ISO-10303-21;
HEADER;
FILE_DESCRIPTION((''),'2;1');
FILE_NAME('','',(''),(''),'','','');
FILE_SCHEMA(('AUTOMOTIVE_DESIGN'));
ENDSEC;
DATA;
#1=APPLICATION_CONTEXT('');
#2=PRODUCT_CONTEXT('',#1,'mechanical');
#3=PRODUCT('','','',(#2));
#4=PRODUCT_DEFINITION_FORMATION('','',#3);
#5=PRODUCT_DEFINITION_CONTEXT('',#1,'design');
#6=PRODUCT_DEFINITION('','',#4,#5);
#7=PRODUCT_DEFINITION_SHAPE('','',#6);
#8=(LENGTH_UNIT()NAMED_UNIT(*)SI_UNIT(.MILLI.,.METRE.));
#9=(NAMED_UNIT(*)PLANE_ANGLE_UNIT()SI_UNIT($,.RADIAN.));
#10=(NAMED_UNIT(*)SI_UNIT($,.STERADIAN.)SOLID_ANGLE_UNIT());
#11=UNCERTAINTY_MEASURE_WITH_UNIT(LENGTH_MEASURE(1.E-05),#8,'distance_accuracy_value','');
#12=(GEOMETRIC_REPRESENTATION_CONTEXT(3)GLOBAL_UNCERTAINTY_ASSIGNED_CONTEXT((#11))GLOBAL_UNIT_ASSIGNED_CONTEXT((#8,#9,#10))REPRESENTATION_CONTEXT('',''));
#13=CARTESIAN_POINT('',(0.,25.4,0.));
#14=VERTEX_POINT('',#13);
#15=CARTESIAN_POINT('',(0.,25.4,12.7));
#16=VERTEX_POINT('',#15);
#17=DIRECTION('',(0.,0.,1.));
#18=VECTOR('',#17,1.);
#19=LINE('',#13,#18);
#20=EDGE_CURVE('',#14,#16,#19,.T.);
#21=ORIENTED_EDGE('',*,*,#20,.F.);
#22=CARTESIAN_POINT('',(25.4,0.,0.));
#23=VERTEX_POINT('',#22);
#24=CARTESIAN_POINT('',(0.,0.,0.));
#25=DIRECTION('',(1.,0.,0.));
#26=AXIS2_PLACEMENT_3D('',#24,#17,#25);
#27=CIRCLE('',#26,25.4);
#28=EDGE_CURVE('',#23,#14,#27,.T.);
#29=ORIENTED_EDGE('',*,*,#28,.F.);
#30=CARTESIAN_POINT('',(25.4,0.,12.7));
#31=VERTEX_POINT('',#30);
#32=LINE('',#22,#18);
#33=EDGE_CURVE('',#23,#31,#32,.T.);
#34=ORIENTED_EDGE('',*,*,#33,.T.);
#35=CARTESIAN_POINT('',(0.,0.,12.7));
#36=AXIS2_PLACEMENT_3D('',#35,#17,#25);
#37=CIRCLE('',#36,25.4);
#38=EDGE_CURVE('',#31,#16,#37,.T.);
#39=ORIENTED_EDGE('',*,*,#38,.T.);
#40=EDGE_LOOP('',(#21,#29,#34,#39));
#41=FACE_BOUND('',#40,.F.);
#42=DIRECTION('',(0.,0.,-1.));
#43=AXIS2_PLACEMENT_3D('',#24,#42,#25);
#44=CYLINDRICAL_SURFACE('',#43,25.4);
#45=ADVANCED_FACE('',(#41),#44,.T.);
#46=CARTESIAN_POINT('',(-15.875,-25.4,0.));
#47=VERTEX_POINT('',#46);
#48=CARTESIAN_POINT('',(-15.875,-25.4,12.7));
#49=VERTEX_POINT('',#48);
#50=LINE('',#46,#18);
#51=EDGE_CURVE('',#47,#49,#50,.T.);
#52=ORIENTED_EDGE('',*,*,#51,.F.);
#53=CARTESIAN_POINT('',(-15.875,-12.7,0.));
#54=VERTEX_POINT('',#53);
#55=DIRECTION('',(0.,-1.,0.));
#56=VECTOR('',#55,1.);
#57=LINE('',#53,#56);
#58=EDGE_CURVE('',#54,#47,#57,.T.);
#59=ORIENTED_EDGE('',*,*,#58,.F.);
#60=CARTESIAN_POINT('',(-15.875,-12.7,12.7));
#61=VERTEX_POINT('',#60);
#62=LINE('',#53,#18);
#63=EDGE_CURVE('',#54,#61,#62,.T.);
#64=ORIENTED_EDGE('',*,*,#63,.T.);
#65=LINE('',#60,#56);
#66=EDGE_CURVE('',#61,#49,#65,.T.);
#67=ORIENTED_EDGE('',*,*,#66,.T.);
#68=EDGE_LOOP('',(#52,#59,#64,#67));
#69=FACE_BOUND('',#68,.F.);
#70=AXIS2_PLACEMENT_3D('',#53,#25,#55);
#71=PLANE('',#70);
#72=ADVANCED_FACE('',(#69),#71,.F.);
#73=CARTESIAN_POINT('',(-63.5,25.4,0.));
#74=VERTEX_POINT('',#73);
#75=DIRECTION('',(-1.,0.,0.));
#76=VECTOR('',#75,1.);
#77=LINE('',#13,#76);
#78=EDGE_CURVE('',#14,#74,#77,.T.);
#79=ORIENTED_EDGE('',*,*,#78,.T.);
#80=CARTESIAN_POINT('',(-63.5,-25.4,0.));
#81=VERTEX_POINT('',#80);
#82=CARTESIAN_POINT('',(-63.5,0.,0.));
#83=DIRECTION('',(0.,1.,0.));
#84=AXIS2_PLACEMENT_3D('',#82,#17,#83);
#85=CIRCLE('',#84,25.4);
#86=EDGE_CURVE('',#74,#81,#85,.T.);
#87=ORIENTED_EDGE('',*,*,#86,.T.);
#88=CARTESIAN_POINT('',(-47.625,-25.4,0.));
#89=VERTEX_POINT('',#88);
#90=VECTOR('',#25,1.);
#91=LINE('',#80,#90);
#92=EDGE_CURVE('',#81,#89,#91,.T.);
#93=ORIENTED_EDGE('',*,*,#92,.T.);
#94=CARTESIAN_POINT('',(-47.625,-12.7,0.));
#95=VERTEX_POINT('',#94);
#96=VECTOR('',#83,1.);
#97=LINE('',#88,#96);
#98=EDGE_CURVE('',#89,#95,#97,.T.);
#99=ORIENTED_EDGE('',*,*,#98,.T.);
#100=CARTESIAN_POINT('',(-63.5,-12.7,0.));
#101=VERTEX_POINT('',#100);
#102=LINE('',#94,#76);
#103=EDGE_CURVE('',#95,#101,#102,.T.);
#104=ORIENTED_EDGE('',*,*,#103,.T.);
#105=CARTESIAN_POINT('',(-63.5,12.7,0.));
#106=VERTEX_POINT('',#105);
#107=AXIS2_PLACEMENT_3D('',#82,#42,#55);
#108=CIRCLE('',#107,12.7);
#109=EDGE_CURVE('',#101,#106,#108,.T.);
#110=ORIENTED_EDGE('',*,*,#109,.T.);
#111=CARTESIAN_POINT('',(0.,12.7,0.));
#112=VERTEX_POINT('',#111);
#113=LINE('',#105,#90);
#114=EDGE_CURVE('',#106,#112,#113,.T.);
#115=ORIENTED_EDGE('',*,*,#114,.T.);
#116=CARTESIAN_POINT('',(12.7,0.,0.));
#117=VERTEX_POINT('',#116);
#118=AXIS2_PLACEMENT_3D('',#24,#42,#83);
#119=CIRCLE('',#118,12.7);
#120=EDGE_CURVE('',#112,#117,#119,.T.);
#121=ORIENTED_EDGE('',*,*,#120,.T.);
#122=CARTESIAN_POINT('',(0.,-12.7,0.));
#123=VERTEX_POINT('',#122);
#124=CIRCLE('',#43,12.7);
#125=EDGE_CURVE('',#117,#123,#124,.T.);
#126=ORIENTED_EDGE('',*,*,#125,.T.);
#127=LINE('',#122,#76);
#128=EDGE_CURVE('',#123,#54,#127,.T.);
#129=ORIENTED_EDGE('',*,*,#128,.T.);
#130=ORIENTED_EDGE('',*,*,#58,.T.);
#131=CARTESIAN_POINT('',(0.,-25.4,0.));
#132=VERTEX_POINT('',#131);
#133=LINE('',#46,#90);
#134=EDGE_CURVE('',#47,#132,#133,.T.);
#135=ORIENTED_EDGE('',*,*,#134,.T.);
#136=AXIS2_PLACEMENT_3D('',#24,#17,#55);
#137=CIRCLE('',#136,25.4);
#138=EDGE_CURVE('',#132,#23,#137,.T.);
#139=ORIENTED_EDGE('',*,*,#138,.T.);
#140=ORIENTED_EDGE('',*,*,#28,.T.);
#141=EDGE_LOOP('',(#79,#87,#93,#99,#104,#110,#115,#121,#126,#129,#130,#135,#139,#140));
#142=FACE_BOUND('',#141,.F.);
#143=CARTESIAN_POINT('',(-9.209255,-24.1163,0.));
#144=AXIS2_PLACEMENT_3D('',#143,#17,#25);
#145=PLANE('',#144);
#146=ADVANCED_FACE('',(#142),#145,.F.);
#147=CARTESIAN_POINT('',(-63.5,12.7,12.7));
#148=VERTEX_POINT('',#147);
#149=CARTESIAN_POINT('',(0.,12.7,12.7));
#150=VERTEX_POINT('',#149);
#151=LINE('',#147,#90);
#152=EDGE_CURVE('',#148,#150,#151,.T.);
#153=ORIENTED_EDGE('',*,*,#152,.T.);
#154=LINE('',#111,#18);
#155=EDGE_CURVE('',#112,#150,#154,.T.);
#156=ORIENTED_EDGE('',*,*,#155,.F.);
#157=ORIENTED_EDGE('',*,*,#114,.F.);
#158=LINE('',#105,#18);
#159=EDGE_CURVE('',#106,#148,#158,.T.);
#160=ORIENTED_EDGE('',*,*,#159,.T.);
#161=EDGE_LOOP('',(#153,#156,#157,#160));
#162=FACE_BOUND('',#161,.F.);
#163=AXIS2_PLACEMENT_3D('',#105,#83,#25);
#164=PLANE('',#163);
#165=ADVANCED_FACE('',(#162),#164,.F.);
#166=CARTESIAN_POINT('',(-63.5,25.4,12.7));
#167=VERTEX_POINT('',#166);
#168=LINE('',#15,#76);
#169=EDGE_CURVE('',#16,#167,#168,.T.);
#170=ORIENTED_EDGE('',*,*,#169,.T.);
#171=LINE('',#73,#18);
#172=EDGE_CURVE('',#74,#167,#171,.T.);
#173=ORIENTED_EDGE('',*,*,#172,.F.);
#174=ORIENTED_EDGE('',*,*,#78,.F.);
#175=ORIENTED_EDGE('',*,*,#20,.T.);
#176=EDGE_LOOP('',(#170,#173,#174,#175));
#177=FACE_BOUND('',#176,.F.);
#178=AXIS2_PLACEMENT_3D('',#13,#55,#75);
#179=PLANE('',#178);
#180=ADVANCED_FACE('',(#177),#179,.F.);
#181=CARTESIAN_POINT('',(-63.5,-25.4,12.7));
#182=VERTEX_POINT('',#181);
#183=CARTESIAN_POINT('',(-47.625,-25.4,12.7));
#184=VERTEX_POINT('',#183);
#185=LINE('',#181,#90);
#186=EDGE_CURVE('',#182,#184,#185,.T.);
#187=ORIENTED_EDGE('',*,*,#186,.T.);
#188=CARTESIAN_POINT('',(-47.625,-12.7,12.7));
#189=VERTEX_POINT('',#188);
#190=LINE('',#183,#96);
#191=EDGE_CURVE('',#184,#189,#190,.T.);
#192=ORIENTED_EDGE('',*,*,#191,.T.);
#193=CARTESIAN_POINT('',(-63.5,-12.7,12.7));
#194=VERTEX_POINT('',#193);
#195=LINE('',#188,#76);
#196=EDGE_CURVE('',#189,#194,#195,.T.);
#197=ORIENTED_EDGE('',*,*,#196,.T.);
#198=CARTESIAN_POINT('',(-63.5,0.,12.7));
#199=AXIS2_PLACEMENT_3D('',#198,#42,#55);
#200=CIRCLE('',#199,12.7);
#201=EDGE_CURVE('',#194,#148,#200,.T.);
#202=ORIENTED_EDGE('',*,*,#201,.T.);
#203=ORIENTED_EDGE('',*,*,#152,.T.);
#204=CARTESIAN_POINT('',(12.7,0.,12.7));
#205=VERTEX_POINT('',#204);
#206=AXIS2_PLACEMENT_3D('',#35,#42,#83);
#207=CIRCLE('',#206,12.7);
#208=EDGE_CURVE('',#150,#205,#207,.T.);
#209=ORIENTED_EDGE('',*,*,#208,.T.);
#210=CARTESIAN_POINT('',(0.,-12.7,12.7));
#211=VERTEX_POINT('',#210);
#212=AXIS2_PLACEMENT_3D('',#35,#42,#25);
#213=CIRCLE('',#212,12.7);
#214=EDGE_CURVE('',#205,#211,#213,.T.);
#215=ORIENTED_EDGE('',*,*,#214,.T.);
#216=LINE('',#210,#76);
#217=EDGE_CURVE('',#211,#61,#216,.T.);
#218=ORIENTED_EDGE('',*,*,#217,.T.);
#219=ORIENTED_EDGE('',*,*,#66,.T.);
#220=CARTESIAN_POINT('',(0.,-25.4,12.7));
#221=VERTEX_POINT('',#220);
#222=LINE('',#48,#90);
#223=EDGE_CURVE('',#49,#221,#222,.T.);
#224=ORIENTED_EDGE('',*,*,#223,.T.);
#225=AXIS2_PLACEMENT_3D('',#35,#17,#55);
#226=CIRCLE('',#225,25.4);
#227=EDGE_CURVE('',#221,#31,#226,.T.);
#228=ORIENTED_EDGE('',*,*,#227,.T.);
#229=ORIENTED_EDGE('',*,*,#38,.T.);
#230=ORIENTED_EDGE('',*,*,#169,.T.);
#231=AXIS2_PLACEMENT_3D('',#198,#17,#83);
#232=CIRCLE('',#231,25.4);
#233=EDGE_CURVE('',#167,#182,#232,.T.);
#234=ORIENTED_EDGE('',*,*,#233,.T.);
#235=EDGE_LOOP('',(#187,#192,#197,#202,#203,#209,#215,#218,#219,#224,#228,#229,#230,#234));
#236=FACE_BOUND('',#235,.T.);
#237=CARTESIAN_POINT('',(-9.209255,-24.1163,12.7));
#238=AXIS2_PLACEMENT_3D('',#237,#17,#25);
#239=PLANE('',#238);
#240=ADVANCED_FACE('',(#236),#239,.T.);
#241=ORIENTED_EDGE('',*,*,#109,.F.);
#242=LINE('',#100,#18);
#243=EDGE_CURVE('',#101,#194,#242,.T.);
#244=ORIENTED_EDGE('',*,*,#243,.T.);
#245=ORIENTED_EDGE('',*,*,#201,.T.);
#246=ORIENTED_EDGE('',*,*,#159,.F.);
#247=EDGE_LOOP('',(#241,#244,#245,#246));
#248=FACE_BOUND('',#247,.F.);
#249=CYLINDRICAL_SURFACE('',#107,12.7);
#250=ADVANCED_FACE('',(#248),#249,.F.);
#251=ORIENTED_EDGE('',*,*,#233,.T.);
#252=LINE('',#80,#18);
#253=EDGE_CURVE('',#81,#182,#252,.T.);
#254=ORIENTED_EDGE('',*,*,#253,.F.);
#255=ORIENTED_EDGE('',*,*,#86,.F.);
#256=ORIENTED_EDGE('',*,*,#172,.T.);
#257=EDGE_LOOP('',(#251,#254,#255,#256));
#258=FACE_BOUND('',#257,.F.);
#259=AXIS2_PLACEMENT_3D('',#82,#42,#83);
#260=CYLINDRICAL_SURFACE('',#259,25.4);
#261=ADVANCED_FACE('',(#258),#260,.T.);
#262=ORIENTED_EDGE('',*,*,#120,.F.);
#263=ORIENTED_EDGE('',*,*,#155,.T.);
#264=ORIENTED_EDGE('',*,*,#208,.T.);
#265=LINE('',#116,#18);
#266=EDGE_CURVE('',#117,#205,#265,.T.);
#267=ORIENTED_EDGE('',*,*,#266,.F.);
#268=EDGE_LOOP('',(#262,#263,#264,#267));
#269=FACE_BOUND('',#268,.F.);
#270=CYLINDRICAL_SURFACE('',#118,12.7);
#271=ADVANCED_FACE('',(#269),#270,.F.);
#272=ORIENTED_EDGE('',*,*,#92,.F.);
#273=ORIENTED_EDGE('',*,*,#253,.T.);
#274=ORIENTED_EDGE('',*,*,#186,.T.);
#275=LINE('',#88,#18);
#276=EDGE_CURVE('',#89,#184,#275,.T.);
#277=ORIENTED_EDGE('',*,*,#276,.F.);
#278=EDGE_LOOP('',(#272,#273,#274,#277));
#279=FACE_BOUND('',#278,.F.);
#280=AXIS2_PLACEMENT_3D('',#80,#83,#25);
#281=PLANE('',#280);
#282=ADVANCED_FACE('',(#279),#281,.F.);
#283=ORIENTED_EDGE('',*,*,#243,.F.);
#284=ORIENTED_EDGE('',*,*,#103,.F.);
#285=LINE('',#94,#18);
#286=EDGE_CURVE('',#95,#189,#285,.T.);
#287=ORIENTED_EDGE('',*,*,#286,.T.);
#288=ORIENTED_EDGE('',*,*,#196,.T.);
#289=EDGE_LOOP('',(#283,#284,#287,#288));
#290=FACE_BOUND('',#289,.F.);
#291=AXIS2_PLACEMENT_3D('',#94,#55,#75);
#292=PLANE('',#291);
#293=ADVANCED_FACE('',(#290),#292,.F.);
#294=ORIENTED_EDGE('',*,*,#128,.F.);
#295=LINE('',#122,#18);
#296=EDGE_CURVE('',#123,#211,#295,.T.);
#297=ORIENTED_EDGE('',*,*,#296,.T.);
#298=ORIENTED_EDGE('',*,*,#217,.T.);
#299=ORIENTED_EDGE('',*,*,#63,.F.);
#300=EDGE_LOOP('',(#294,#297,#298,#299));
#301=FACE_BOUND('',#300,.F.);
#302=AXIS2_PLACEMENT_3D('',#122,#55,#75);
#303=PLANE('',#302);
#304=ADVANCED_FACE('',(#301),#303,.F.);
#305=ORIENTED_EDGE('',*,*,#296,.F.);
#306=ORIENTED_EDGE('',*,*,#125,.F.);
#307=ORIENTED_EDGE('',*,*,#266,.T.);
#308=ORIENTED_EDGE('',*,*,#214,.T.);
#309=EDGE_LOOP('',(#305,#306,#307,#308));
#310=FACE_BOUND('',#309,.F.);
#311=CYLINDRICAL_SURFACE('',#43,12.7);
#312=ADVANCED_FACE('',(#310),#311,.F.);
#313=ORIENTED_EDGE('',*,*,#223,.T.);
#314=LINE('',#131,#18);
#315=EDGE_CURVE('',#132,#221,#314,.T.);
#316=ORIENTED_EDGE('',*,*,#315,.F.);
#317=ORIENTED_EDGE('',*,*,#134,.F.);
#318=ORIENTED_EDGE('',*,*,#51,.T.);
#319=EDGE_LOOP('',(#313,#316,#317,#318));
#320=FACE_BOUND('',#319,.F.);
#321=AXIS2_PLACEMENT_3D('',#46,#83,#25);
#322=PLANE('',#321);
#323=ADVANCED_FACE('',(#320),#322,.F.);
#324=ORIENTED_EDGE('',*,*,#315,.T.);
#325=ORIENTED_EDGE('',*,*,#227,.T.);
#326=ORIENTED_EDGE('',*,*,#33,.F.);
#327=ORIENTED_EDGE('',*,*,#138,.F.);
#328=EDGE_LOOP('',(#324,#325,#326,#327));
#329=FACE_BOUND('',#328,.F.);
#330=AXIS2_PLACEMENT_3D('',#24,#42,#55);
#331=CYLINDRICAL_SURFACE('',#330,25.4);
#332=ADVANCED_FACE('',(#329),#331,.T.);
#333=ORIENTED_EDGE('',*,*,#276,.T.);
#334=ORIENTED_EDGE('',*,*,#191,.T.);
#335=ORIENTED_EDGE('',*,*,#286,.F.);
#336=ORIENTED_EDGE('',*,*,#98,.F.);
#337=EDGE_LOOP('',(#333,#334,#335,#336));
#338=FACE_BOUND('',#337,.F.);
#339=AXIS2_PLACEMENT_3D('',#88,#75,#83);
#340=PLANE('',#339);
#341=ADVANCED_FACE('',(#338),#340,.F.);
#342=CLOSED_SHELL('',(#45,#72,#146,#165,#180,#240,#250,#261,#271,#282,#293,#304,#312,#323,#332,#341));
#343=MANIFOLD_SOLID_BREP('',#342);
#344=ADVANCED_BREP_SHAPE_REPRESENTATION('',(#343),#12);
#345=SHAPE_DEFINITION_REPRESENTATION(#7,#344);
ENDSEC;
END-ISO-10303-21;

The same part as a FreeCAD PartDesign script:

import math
import FreeCAD as App
import Part
import Sketcher

V = App.Vector
Q = App.Units.Quantity

doc = App.newDocument("Part")
body = doc.addObject("PartDesign::Body", "Body")

# Sketch on XY plane
sketch1 = doc.addObject("Sketcher::SketchObject", "Sketch")
body.addObject(sketch1)
sketch1.AttachmentSupport = (doc.XY_Plane, [""])
sketch1.MapMode = "FlatFace"
sketch1.addGeometry([
    Part.LineSegment(V(-15.875, -25.4, 0), V(0, -25.4, 0)),  # 0
    Part.ArcOfCircle(Part.Circle(V(0, 0, 0), V(0, 0, 1), 25.4), math.radians(-90), math.radians(0)),  # 1
    Part.ArcOfCircle(Part.Circle(V(0, 0, 0), V(0, 0, 1), 25.4), math.radians(0), math.radians(90)),  # 2
    Part.LineSegment(V(0, 25.4, 0), V(-63.5, 25.4, 0)),  # 3
    Part.ArcOfCircle(Part.Circle(V(-63.5, 0, 0), V(0, 0, 1), 25.4), math.radians(90), math.radians(270)),  # 4
    Part.LineSegment(V(-63.5, -25.4, 0), V(-47.625, -25.4, 0)),  # 5
    Part.LineSegment(V(-47.625, -25.4, 0), V(-47.625, -12.7, 0)),  # 6
    Part.LineSegment(V(-47.625, -12.7, 0), V(-63.5, -12.7, 0)),  # 7
    Part.ArcOfCircle(Part.Circle(V(-63.5, 0, 0), V(0, 0, 1), 12.7), math.radians(90), math.radians(270)),  # 8
    Part.LineSegment(V(-63.5, 12.7, 0), V(0, 12.7, 0)),  # 9
    Part.ArcOfCircle(Part.Circle(V(0, 0, 0), V(0, 0, 1), 12.7), math.radians(0), math.radians(90)),  # 10
    Part.ArcOfCircle(Part.Circle(V(0, 0, 0), V(0, 0, 1), 12.7), math.radians(-90), math.radians(0)),  # 11
    Part.LineSegment(V(0, -12.7, 0), V(-15.875, -12.7, 0)),  # 12
    Part.LineSegment(V(-15.875, -12.7, 0), V(-15.875, -25.4, 0)),  # 13
], False)
sketch1.addConstraint([
    Sketcher.Constraint("Tangent", 0, 2, 1, 1),
    Sketcher.Constraint("Tangent", 1, 2, 2, 1),
    Sketcher.Constraint("Tangent", 2, 2, 3, 1),
    Sketcher.Constraint("Tangent", 3, 2, 4, 1),
    Sketcher.Constraint("Tangent", 4, 2, 5, 1),
    Sketcher.Constraint("Coincident", 5, 2, 6, 1),
    Sketcher.Constraint("Coincident", 6, 2, 7, 1),
    Sketcher.Constraint("Tangent", 7, 2, 8, 2),
    Sketcher.Constraint("Tangent", 8, 1, 9, 1),
    Sketcher.Constraint("Tangent", 9, 2, 10, 2),
    Sketcher.Constraint("Tangent", 10, 1, 11, 2),
    Sketcher.Constraint("Tangent", 11, 1, 12, 1),
    Sketcher.Constraint("Coincident", 12, 2, 13, 1),
    Sketcher.Constraint("Coincident", 13, 2, 0, 1),
    Sketcher.Constraint("Horizontal", 0),
    Sketcher.Constraint("Horizontal", 3),
    Sketcher.Constraint("Horizontal", 5),
    Sketcher.Constraint("Vertical", 6),
    Sketcher.Constraint("Horizontal", 7),
    Sketcher.Constraint("Horizontal", 9),
    Sketcher.Constraint("Horizontal", 12),
    Sketcher.Constraint("Vertical", 13),
    Sketcher.Constraint("Coincident", 1, 3, -1, 1),
    Sketcher.Constraint("Coincident", 10, 3, -1, 1),
    Sketcher.Constraint("Coincident", 8, 3, 4, 3),
    Sketcher.Constraint("Equal", 1, 2),
    Sketcher.Constraint("Equal", 2, 4),
    Sketcher.Constraint("Equal", 10, 11),
    Sketcher.Constraint("PointOnObject", 1, 2, -1),
    Sketcher.Constraint("PointOnObject", 10, 1, -1),
    Sketcher.Constraint("Equal", 0, 5),
    Sketcher.Constraint("Radius", 1, Q("1 in")),
    Sketcher.Constraint("Radius", 8, Q("0.5 in")),
    Sketcher.Constraint("DistanceX", 3, 2, 3, 1, Q("2.5 in")),
    Sketcher.Constraint("DistanceX", 0, 1, 0, 2, Q("0.625 in")),
])
pad1 = doc.addObject("PartDesign::Pad", "Pad")
body.addObject(pad1)
pad1.Profile = sketch1
pad1.Length = Q("0.5 in")

doc.recompute()
